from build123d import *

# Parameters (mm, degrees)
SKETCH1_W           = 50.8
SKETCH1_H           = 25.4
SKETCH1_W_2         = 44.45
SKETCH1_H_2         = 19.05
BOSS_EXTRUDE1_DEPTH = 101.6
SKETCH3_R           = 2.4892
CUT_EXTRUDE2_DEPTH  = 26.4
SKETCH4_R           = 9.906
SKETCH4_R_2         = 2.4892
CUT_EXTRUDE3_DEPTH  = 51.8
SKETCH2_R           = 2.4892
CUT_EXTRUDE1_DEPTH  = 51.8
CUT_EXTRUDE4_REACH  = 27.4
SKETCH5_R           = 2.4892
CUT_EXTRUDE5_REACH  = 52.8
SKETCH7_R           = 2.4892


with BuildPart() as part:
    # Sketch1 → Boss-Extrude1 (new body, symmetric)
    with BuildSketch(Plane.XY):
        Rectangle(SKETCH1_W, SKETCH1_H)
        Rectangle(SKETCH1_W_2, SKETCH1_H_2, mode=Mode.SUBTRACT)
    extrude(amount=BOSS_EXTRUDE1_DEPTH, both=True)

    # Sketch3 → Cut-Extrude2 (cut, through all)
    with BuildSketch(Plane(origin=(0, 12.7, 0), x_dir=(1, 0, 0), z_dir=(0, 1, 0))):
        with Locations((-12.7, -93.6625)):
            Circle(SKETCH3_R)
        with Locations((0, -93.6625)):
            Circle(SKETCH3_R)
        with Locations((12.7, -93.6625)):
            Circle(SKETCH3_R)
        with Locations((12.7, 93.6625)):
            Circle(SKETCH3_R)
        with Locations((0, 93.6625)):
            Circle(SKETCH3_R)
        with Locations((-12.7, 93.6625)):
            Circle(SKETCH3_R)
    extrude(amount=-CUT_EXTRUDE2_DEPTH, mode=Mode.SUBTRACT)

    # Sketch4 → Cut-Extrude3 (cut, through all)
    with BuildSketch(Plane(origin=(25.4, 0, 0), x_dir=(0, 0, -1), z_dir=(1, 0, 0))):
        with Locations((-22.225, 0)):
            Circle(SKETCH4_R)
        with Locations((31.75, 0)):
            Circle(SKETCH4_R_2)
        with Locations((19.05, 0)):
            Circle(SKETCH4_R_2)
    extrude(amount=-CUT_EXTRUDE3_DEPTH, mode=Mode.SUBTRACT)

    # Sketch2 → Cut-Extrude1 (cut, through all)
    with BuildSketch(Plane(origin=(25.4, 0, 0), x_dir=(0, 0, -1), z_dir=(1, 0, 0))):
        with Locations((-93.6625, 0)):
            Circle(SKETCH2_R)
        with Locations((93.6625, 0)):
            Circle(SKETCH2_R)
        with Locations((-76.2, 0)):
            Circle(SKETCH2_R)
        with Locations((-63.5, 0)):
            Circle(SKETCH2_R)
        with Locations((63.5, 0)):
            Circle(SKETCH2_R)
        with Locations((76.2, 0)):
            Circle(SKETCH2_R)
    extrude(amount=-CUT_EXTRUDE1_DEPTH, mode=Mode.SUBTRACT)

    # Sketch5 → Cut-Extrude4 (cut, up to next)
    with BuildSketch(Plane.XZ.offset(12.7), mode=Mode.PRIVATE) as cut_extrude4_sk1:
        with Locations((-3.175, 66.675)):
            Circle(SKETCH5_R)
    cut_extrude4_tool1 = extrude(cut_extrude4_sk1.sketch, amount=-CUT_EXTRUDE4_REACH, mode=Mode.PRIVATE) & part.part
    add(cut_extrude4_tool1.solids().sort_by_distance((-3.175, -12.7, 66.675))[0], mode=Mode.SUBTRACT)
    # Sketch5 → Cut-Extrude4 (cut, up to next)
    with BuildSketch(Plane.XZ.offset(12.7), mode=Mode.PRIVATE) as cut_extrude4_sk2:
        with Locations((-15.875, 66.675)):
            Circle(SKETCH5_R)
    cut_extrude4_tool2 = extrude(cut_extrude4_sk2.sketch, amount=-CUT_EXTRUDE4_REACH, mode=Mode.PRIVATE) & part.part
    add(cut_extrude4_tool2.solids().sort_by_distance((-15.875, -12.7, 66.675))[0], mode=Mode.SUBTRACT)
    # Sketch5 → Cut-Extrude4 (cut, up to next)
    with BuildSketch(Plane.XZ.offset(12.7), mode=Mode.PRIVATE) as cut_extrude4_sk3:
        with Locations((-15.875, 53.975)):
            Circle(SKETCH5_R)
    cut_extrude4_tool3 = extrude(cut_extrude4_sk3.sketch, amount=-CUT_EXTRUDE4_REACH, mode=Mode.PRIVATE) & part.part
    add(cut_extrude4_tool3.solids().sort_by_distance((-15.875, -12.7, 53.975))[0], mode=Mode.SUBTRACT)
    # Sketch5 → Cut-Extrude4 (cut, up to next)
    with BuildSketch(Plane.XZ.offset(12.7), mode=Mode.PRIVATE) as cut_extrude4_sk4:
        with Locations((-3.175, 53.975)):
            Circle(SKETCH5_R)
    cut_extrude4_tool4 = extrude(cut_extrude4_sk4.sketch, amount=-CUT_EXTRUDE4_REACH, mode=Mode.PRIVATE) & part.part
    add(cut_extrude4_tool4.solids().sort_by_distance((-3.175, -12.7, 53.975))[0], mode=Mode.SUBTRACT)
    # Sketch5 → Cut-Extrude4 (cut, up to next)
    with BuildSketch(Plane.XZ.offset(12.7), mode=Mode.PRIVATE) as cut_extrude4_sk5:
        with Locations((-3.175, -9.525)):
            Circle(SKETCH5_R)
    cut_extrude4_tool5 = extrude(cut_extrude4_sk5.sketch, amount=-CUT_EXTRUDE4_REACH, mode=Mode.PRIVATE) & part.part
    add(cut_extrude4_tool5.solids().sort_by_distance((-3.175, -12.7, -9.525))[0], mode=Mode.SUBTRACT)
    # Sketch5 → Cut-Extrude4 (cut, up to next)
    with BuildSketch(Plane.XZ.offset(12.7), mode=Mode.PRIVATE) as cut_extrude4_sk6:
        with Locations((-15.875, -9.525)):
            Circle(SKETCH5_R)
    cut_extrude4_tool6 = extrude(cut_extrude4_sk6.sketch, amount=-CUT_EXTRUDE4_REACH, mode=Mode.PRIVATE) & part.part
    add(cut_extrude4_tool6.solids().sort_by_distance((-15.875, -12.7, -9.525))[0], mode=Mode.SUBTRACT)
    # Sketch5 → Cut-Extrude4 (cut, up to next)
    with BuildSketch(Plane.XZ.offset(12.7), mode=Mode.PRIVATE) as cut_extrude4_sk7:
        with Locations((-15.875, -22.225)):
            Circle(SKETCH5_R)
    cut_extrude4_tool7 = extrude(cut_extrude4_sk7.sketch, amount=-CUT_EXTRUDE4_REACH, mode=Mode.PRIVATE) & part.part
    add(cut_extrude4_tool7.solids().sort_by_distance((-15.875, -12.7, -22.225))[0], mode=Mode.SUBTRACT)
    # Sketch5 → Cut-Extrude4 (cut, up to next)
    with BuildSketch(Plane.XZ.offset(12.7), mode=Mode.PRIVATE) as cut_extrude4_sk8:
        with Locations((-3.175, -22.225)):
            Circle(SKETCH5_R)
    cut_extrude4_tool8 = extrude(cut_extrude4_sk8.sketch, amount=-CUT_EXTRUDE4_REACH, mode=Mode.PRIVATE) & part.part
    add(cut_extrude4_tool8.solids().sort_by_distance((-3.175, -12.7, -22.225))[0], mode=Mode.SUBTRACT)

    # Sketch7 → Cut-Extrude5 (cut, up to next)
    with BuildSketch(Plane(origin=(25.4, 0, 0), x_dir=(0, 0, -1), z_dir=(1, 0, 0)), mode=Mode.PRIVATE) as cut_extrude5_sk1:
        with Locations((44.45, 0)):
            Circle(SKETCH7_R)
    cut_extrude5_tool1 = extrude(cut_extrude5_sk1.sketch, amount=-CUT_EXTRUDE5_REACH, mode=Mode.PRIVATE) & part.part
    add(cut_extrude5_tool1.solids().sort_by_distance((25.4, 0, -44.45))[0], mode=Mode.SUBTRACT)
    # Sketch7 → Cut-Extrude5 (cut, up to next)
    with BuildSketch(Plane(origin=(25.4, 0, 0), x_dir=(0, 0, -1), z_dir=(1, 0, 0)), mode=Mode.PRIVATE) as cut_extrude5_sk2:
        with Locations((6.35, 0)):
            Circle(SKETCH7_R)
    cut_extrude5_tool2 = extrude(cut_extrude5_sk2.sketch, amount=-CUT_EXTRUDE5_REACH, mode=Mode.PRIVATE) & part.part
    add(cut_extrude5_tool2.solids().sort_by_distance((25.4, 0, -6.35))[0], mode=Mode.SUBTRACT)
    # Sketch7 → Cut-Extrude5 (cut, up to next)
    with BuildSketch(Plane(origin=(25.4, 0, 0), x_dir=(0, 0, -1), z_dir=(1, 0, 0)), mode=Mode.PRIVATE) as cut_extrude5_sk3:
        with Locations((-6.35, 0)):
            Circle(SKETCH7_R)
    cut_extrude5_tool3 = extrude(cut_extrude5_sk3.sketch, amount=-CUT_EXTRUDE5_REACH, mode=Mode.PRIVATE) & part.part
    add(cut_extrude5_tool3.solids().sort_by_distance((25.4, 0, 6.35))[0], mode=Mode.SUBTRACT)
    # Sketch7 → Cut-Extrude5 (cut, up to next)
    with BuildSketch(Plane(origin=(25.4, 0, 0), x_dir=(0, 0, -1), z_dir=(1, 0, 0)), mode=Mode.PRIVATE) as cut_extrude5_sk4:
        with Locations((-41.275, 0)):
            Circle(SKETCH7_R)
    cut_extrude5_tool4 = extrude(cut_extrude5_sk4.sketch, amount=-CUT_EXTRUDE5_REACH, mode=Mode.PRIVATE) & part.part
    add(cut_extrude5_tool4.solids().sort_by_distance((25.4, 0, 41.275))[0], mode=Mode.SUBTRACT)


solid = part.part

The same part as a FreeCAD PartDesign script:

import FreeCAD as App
import Part
import Sketcher

V = App.Vector
Q = App.Units.Quantity

doc = App.newDocument("Part")
params = doc.addObject("Spreadsheet::Sheet", "Params")
for row, (alias, value) in enumerate([
    ("sketch1_width", "2 in"),
    ("sketch1_height", "1 in"),
    ("sketch1_width2", "1.75 in"),
    ("sketch1_height2", "0.75 in"),
    ("pad1_length", "8 in"),
    ("sketch2_diameter", "0.196 in"),
    ("sketch3_diameter", "0.78 in"),
    ("sketch3_diameter2", "0.196 in"),
    ("sketch4_diameter", "0.196 in"),
    ("sketch5_diameter", "0.196 in"),
    ("sketch6_diameter", "0.196 in"),
    ("sketch7_diameter", "0.196 in"),
    ("sketch8_diameter", "0.196 in"),
    ("sketch9_diameter", "0.196 in"),
    ("sketch10_diameter", "0.196 in"),
    ("sketch11_diameter", "0.196 in"),
    ("sketch12_diameter", "0.196 in"),
    ("sketch13_diameter", "0.196 in"),
    ("sketch14_diameter", "0.196 in"),
    ("sketch15_diameter", "0.196 in"),
    ("sketch16_diameter", "0.196 in"),
], start=1):
    params.set(f"A{row}", alias)
    params.set(f"B{row}", "=" + value)
    params.setAlias(f"B{row}", alias)

body = doc.addObject("PartDesign::Body", "Body")

# Sketch on XY plane
sketch1 = body.newObject("Sketcher::SketchObject", "Sketch")
sketch1.AttachmentSupport = (doc.getObject("XY_Plane"), [""])
sketch1.MapMode = "FlatFace"
sketch1.addGeometry([
    Part.LineSegment(V(-25, 13, 0), V(-25, -13, 0)),  # 0
    Part.LineSegment(V(-25, -13, 0), V(25, -13, 0)),  # 1
    Part.LineSegment(V(25, -13, 0), V(25, 13, 0)),  # 2
    Part.LineSegment(V(25, 13, 0), V(-25, 13, 0)),  # 3
    Part.LineSegment(V(22, -10, 0), V(-22, -10, 0)),  # 4
    Part.LineSegment(V(-22, -10, 0), V(-22, 10, 0)),  # 5
    Part.LineSegment(V(-22, 10, 0), V(22, 10, 0)),  # 6
    Part.LineSegment(V(22, 10, 0), V(22, -10, 0)),  # 7
], False)
sketch1.addConstraint([
    Sketcher.Constraint("Coincident", 0, 2, 1, 1),
    Sketcher.Constraint("Coincident", 1, 2, 2, 1),
    Sketcher.Constraint("Coincident", 2, 2, 3, 1),
    Sketcher.Constraint("Coincident", 3, 2, 0, 1),
    Sketcher.Constraint("Coincident", 4, 2, 5, 1),
    Sketcher.Constraint("Coincident", 5, 2, 6, 1),
    Sketcher.Constraint("Coincident", 6, 2, 7, 1),
    Sketcher.Constraint("Coincident", 7, 2, 4, 1),
    Sketcher.Constraint("Vertical", 0),
    Sketcher.Constraint("Horizontal", 1),
    Sketcher.Constraint("Vertical", 2),
    Sketcher.Constraint("Horizontal", 3),
    Sketcher.Constraint("Horizontal", 4),
    Sketcher.Constraint("Vertical", 5),
    Sketcher.Constraint("Horizontal", 6),
    Sketcher.Constraint("Vertical", 7),
    Sketcher.Constraint("Symmetric", 0, 2, 2, 2, -1, 1),
    Sketcher.Constraint("Symmetric", 4, 2, 6, 2, -1, 1),
    Sketcher.Constraint("DistanceX", 1, 1, 1, 2, Q("2 in")),
    Sketcher.Constraint("DistanceY", 0, 2, 0, 1, Q("1 in")),
    Sketcher.Constraint("DistanceX", 4, 2, 4, 1, Q("1.75 in")),
    Sketcher.Constraint("DistanceY", 5, 1, 5, 2, Q("0.75 in")),
])
sketch1.setExpression("Constraints[18]", "Params.sketch1_width")
sketch1.setExpression("Constraints[19]", "Params.sketch1_height")
sketch1.setExpression("Constraints[20]", "Params.sketch1_width2")
sketch1.setExpression("Constraints[21]", "Params.sketch1_height2")
pad1 = body.newObject("PartDesign::Pad", "Pad")
pad1.Profile = sketch1
pad1.setExpression("Length", "Params.pad1_length")
pad1.Midplane = True

# Sketch on XZ plane
sketch2 = body.newObject("Sketcher::SketchObject", "Sketch001")
sketch2.AttachmentSupport = (doc.getObject("XZ_Plane"), [""])
sketch2.MapMode = "FlatFace"
sketch2.AttachmentOffset = App.Placement(V(0, 0, -0.5 * 25.4), App.Rotation())
sketch2.addGeometry([
    Part.Circle(V(-12.7, 93.7, 0), V(0, 0, 1), 2.5),  # 0
    Part.Circle(V(0, 93.7, 0), V(0, 0, 1), 2.5),  # 1
    Part.Circle(V(12.7, 93.7, 0), V(0, 0, 1), 2.5),  # 2
    Part.Circle(V(12.7, -93.7, 0), V(0, 0, 1), 2.5),  # 3
    Part.Circle(V(0, -93.7, 0), V(0, 0, 1), 2.5),  # 4
    Part.Circle(V(-12.7, -93.7, 0), V(0, 0, 1), 2.5),  # 5
], False)
sketch2.addConstraint([
    Sketcher.Constraint("Equal", 0, 1),
    Sketcher.Constraint("Equal", 1, 2),
    Sketcher.Constraint("Equal", 2, 3),
    Sketcher.Constraint("Equal", 3, 4),
    Sketcher.Constraint("Equal", 4, 5),
    Sketcher.Constraint("Symmetric", 0, 3, 3, 3, -1, 1),
    Sketcher.Constraint("Symmetric", 1, 3, 4, 3, -1, 1),
    Sketcher.Constraint("Symmetric", 2, 3, 5, 3, -1, 1),
    Sketcher.Constraint("Symmetric", 0, 3, 2, 3, -2),
    Sketcher.Constraint("PointOnObject", 1, 3, -2),
    Sketcher.Constraint("Horizontal", 0, 3, 1, 3),
    Sketcher.Constraint("Diameter", 0, Q("0.196 in")),
    Sketcher.Constraint("DistanceX", 0, 3, 2, 3, Q("1 in")),
    Sketcher.Constraint("DistanceY", -1, 1, 0, 3, Q("3.6875 in")),
])
sketch2.setExpression("Constraints[11]", "Params.sketch2_diameter")
pocket1 = body.newObject("PartDesign::Pocket", "Pocket")
pocket1.Profile = sketch2
pocket1.Type = "ThroughAll"
pocket1.Reversed = True

# Sketch on YZ plane
sketch3 = body.newObject("Sketcher::SketchObject", "Sketch002")
sketch3.AttachmentSupport = (doc.getObject("YZ_Plane"), [""])
sketch3.MapMode = "FlatFace"
sketch3.AttachmentOffset = App.Placement(V(0, 0, 1 * 25.4), App.Rotation())
sketch3.addGeometry([
    Part.Circle(V(0, 22.2, 0), V(0, 0, 1), 9.9),
    Part.Circle(V(0, -31.8, 0), V(0, 0, 1), 2.5),
    Part.Circle(V(0, -19.1, 0), V(0, 0, 1), 2.5),
], False)
sketch3.addConstraint([
    Sketcher.Constraint("Equal", 1, 2),
    Sketcher.Constraint("PointOnObject", 0, 3, -2),
    Sketcher.Constraint("PointOnObject", 1, 3, -2),
    Sketcher.Constraint("PointOnObject", 2, 3, -2),
    Sketcher.Constraint("Diameter", 0, Q("0.78 in")),
    Sketcher.Constraint("Diameter", 1, Q("0.196 in")),
    Sketcher.Constraint("DistanceY", 1, 3, 2, 3, Q("0.5 in")),
    Sketcher.Constraint("DistanceY", 1, 3, -1, 1, Q("1.25 in")),
    Sketcher.Constraint("DistanceY", -1, 1, 0, 3, Q("0.875 in")),
])
sketch3.setExpression("Constraints[4]", "Params.sketch3_diameter")
sketch3.setExpression("Constraints[5]", "Params.sketch3_diameter2")
pocket2 = body.newObject("PartDesign::Pocket", "Pocket001")
pocket2.Profile = sketch3
pocket2.Type = "ThroughAll"

# Sketch on YZ plane
sketch4 = body.newObject("Sketcher::SketchObject", "Sketch003")
sketch4.AttachmentSupport = (doc.getObject("YZ_Plane"), [""])
sketch4.MapMode = "FlatFace"
sketch4.AttachmentOffset = App.Placement(V(0, 0, 1 * 25.4), App.Rotation())
sketch4.addGeometry([
    Part.Circle(V(0, 93.7, 0), V(0, 0, 1), 2.5),  # 0
    Part.Circle(V(0, -93.7, 0), V(0, 0, 1), 2.5),  # 1
    Part.Circle(V(0, 76.2, 0), V(0, 0, 1), 2.5),  # 2
    Part.Circle(V(0, 63.5, 0), V(0, 0, 1), 2.5),  # 3
    Part.Circle(V(0, -63.5, 0), V(0, 0, 1), 2.5),  # 4
    Part.Circle(V(0, -76.2, 0), V(0, 0, 1), 2.5),  # 5
], False)
sketch4.addConstraint([
    Sketcher.Constraint("Equal", 0, 1),
    Sketcher.Constraint("Equal", 1, 2),
    Sketcher.Constraint("Equal", 2, 3),
    Sketcher.Constraint("Equal", 3, 4),
    Sketcher.Constraint("Equal", 4, 5),
    Sketcher.Constraint("Symmetric", 0, 3, 1, 3, -1, 1),
    Sketcher.Constraint("Symmetric", 3, 3, 4, 3, -1, 1),
    Sketcher.Constraint("Symmetric", 2, 3, 5, 3, -1, 1),
    Sketcher.Constraint("PointOnObject", 0, 3, -2),
    Sketcher.Constraint("PointOnObject", 2, 3, -2),
    Sketcher.Constraint("PointOnObject", 3, 3, -2),
    Sketcher.Constraint("Diameter", 0, Q("0.196 in")),
    Sketcher.Constraint("DistanceY", -1, 1, 2, 3, Q("3 in")),
    Sketcher.Constraint("DistanceY", 4, 3, 3, 3, Q("5 in")),
    Sketcher.Constraint("DistanceY", -1, 1, 0, 3, Q("3.6875 in")),
])
sketch4.setExpression("Constraints[11]", "Params.sketch4_diameter")
pocket3 = body.newObject("PartDesign::Pocket", "Pocket002")
pocket3.Profile = sketch4
pocket3.Type = "ThroughAll"

# Sketch on XZ plane
sketch5 = body.newObject("Sketcher::SketchObject", "Sketch004")
sketch5.AttachmentSupport = (doc.getObject("XZ_Plane"), [""])
sketch5.MapMode = "FlatFace"
sketch5.AttachmentOffset = App.Placement(V(0, 0, 0.5 * 25.4), App.Rotation())
sketch5.addGeometry(Part.Circle(V(-3.2, 66.7, 0), V(0, 0, 1), 2.5), False)
sketch5.addConstraint([
    Sketcher.Constraint("Diameter", 0, Q("0.196 in")),
    Sketcher.Constraint("DistanceX", 0, 3, -1, 1, Q("0.125 in")),
    Sketcher.Constraint("DistanceY", -1, 1, 0, 3, Q("2.625 in")),
])
sketch5.setExpression("Constraints[0]", "Params.sketch5_diameter")
pocket4 = body.newObject("PartDesign::Pocket", "Pocket003")
pocket4.Profile = sketch5
pocket4.Type = "UpToFirst"

# Sketch on XZ plane
sketch6 = body.newObject("Sketcher::SketchObject", "Sketch005")
sketch6.AttachmentSupport = (doc.getObject("XZ_Plane"), [""])
sketch6.MapMode = "FlatFace"
sketch6.AttachmentOffset = App.Placement(V(0, 0, 0.5 * 25.4), App.Rotation())
sketch6.addGeometry(Part.Circle(V(-15.9, 66.7, 0), V(0, 0, 1), 2.5), False)
sketch6.addConstraint([
    Sketcher.Constraint("Diameter", 0, Q("0.196 in")),
    Sketcher.Constraint("DistanceX", 0, 3, -1, 1, Q("0.625 in")),
    Sketcher.Constraint("DistanceY", -1, 1, 0, 3, Q("2.625 in")),
])
sketch6.setExpression("Constraints[0]", "Params.sketch6_diameter")
pocket5 = body.newObject("PartDesign::Pocket", "Pocket004")
pocket5.Profile = sketch6
pocket5.Type = "UpToFirst"

# Sketch on XZ plane
sketch7 = body.newObject("Sketcher::SketchObject", "Sketch006")
sketch7.AttachmentSupport = (doc.getObject("XZ_Plane"), [""])
sketch7.MapMode = "FlatFace"
sketch7.AttachmentOffset = App.Placement(V(0, 0, 0.5 * 25.4), App.Rotation())
sketch7.addGeometry(Part.Circle(V(-15.9, 54, 0), V(0, 0, 1), 2.5), False)
sketch7.addConstraint([
    Sketcher.Constraint("Diameter", 0, Q("0.196 in")),
    Sketcher.Constraint("DistanceX", 0, 3, -1, 1, Q("0.625 in")),
    Sketcher.Constraint("DistanceY", -1, 1, 0, 3, Q("2.125 in")),
])
sketch7.setExpression("Constraints[0]", "Params.sketch7_diameter")
pocket6 = body.newObject("PartDesign::Pocket", "Pocket005")
pocket6.Profile = sketch7
pocket6.Type = "UpToFirst"

# Sketch on XZ plane
sketch8 = body.newObject("Sketcher::SketchObject", "Sketch007")
sketch8.AttachmentSupport = (doc.getObject("XZ_Plane"), [""])
sketch8.MapMode = "FlatFace"
sketch8.AttachmentOffset = App.Placement(V(0, 0, 0.5 * 25.4), App.Rotation())
sketch8.addGeometry(Part.Circle(V(-3.2, 54, 0), V(0, 0, 1), 2.5), False)
sketch8.addConstraint([
    Sketcher.Constraint("Diameter", 0, Q("0.196 in")),
    Sketcher.Constraint("DistanceX", 0, 3, -1, 1, Q("0.125 in")),
    Sketcher.Constraint("DistanceY", -1, 1, 0, 3, Q("2.125 in")),
])
sketch8.setExpression("Constraints[0]", "Params.sketch8_diameter")
pocket7 = body.newObject("PartDesign::Pocket", "Pocket006")
pocket7.Profile = sketch8
pocket7.Type = "UpToFirst"

# Sketch on XZ plane
sketch9 = body.newObject("Sketcher::SketchObject", "Sketch008")
sketch9.AttachmentSupport = (doc.getObject("XZ_Plane"), [""])
sketch9.MapMode = "FlatFace"
sketch9.AttachmentOffset = App.Placement(V(0, 0, 0.5 * 25.4), App.Rotation())
sketch9.addGeometry(Part.Circle(V(-3.2, -9.5, 0), V(0, 0, 1), 2.5), False)
sketch9.addConstraint([
    Sketcher.Constraint("Diameter", 0, Q("0.196 in")),
    Sketcher.Constraint("DistanceX", 0, 3, -1, 1, Q("0.125 in")),
    Sketcher.Constraint("DistanceY", 0, 3, -1, 1, Q("0.375 in")),
])
sketch9.setExpression("Constraints[0]", "Params.sketch9_diameter")
pocket8 = body.newObject("PartDesign::Pocket", "Pocket007")
pocket8.Profile = sketch9
pocket8.Type = "UpToFirst"

# Sketch on XZ plane
sketch10 = body.newObject("Sketcher::SketchObject", "Sketch009")
sketch10.AttachmentSupport = (doc.getObject("XZ_Plane"), [""])
sketch10.MapMode = "FlatFace"
sketch10.AttachmentOffset = App.Placement(V(0, 0, 0.5 * 25.4), App.Rotation())
sketch10.addGeometry(Part.Circle(V(-15.9, -9.5, 0), V(0, 0, 1), 2.5), False)
sketch10.addConstraint([
    Sketcher.Constraint("Diameter", 0, Q("0.196 in")),
    Sketcher.Constraint("DistanceX", 0, 3, -1, 1, Q("0.625 in")),
    Sketcher.Constraint("DistanceY", 0, 3, -1, 1, Q("0.375 in")),
])
sketch10.setExpression("Constraints[0]", "Params.sketch10_diameter")
pocket9 = body.newObject("PartDesign::Pocket", "Pocket008")
pocket9.Profile = sketch10
pocket9.Type = "UpToFirst"

# Sketch on XZ plane
sketch11 = body.newObject("Sketcher::SketchObject", "Sketch010")
sketch11.AttachmentSupport = (doc.getObject("XZ_Plane"), [""])
sketch11.MapMode = "FlatFace"
sketch11.AttachmentOffset = App.Placement(V(0, 0, 0.5 * 25.4), App.Rotation())
sketch11.addGeometry(Part.Circle(V(-15.9, -22.2, 0), V(0, 0, 1), 2.5), False)
sketch11.addConstraint([
    Sketcher.Constraint("Diameter", 0, Q("0.196 in")),
    Sketcher.Constraint("DistanceX", 0, 3, -1, 1, Q("0.625 in")),
    Sketcher.Constraint("DistanceY", 0, 3, -1, 1, Q("0.875 in")),
])
sketch11.setExpression("Constraints[0]", "Params.sketch11_diameter")
pocket10 = body.newObject("PartDesign::Pocket", "Pocket009")
pocket10.Profile = sketch11
pocket10.Type = "UpToFirst"

# Sketch on XZ plane
sketch12 = body.newObject("Sketcher::SketchObject", "Sketch011")
sketch12.AttachmentSupport = (doc.getObject("XZ_Plane"), [""])
sketch12.MapMode = "FlatFace"
sketch12.AttachmentOffset = App.Placement(V(0, 0, 0.5 * 25.4), App.Rotation())
sketch12.addGeometry(Part.Circle(V(-3.2, -22.2, 0), V(0, 0, 1), 2.5), False)
sketch12.addConstraint([
    Sketcher.Constraint("Diameter", 0, Q("0.196 in")),
    Sketcher.Constraint("DistanceX", 0, 3, -1, 1, Q("0.125 in")),
    Sketcher.Constraint("DistanceY", 0, 3, -1, 1, Q("0.875 in")),
])
sketch12.setExpression("Constraints[0]", "Params.sketch12_diameter")
pocket11 = body.newObject("PartDesign::Pocket", "Pocket010")
pocket11.Profile = sketch12
pocket11.Type = "UpToFirst"

# Sketch on YZ plane
sketch13 = body.newObject("Sketcher::SketchObject", "Sketch012")
sketch13.AttachmentSupport = (doc.getObject("YZ_Plane"), [""])
sketch13.MapMode = "FlatFace"
sketch13.AttachmentOffset = App.Placement(V(0, 0, 1 * 25.4), App.Rotation())
sketch13.addGeometry(Part.Circle(V(0, -44.5, 0), V(0, 0, 1), 2.5), False)
sketch13.addConstraint([
    Sketcher.Constraint("PointOnObject", 0, 3, -2),
    Sketcher.Constraint("Diameter", 0, Q("0.196 in")),
    Sketcher.Constraint("DistanceY", 0, 3, -1, 1, Q("1.75 in")),
])
sketch13.setExpression("Constraints[1]", "Params.sketch13_diameter")
pocket12 = body.newObject("PartDesign::Pocket", "Pocket011")
pocket12.Profile = sketch13
pocket12.Type = "UpToFirst"

# Sketch on YZ plane
sketch14 = body.newObject("Sketcher::SketchObject", "Sketch013")
sketch14.AttachmentSupport = (doc.getObject("YZ_Plane"), [""])
sketch14.MapMode = "FlatFace"
sketch14.AttachmentOffset = App.Placement(V(0, 0, 1 * 25.4), App.Rotation())
sketch14.addGeometry(Part.Circle(V(0, -6.3, 0), V(0, 0, 1), 2.5), False)
sketch14.addConstraint([
    Sketcher.Constraint("PointOnObject", 0, 3, -2),
    Sketcher.Constraint("Diameter", 0, Q("0.196 in")),
    Sketcher.Constraint("DistanceY", 0, 3, -1, 1, Q("0.25 in")),
])
sketch14.setExpression("Constraints[1]", "Params.sketch14_diameter")
pocket13 = body.newObject("PartDesign::Pocket", "Pocket012")
pocket13.Profile = sketch14
pocket13.Type = "UpToFirst"

# Sketch on YZ plane
sketch15 = body.newObject("Sketcher::SketchObject", "Sketch014")
sketch15.AttachmentSupport = (doc.getObject("YZ_Plane"), [""])
sketch15.MapMode = "FlatFace"
sketch15.AttachmentOffset = App.Placement(V(0, 0, 1 * 25.4), App.Rotation())
sketch15.addGeometry(Part.Circle(V(0, 6.3, 0), V(0, 0, 1), 2.5), False)
sketch15.addConstraint([
    Sketcher.Constraint("PointOnObject", 0, 3, -2),
    Sketcher.Constraint("Diameter", 0, Q("0.196 in")),
    Sketcher.Constraint("DistanceY", -1, 1, 0, 3, Q("0.25 in")),
])
sketch15.setExpression("Constraints[1]", "Params.sketch15_diameter")
pocket14 = body.newObject("PartDesign::Pocket", "Pocket013")
pocket14.Profile = sketch15
pocket14.Type = "UpToFirst"

# Sketch on YZ plane
sketch16 = body.newObject("Sketcher::SketchObject", "Sketch015")
sketch16.AttachmentSupport = (doc.getObject("YZ_Plane"), [""])
sketch16.MapMode = "FlatFace"
sketch16.AttachmentOffset = App.Placement(V(0, 0, 1 * 25.4), App.Rotation())
sketch16.addGeometry(Part.Circle(V(0, 41.3, 0), V(0, 0, 1), 2.5), False)
sketch16.addConstraint([
    Sketcher.Constraint("PointOnObject", 0, 3, -2),
    Sketcher.Constraint("Diameter", 0, Q("0.196 in")),
    Sketcher.Constraint("DistanceY", -1, 1, 0, 3, Q("1.625 in")),
])
sketch16.setExpression("Constraints[1]", "Params.sketch16_diameter")
pocket15 = body.newObject("PartDesign::Pocket", "Pocket014")
pocket15.Profile = sketch16
pocket15.Type = "UpToFirst"

doc.recompute()
